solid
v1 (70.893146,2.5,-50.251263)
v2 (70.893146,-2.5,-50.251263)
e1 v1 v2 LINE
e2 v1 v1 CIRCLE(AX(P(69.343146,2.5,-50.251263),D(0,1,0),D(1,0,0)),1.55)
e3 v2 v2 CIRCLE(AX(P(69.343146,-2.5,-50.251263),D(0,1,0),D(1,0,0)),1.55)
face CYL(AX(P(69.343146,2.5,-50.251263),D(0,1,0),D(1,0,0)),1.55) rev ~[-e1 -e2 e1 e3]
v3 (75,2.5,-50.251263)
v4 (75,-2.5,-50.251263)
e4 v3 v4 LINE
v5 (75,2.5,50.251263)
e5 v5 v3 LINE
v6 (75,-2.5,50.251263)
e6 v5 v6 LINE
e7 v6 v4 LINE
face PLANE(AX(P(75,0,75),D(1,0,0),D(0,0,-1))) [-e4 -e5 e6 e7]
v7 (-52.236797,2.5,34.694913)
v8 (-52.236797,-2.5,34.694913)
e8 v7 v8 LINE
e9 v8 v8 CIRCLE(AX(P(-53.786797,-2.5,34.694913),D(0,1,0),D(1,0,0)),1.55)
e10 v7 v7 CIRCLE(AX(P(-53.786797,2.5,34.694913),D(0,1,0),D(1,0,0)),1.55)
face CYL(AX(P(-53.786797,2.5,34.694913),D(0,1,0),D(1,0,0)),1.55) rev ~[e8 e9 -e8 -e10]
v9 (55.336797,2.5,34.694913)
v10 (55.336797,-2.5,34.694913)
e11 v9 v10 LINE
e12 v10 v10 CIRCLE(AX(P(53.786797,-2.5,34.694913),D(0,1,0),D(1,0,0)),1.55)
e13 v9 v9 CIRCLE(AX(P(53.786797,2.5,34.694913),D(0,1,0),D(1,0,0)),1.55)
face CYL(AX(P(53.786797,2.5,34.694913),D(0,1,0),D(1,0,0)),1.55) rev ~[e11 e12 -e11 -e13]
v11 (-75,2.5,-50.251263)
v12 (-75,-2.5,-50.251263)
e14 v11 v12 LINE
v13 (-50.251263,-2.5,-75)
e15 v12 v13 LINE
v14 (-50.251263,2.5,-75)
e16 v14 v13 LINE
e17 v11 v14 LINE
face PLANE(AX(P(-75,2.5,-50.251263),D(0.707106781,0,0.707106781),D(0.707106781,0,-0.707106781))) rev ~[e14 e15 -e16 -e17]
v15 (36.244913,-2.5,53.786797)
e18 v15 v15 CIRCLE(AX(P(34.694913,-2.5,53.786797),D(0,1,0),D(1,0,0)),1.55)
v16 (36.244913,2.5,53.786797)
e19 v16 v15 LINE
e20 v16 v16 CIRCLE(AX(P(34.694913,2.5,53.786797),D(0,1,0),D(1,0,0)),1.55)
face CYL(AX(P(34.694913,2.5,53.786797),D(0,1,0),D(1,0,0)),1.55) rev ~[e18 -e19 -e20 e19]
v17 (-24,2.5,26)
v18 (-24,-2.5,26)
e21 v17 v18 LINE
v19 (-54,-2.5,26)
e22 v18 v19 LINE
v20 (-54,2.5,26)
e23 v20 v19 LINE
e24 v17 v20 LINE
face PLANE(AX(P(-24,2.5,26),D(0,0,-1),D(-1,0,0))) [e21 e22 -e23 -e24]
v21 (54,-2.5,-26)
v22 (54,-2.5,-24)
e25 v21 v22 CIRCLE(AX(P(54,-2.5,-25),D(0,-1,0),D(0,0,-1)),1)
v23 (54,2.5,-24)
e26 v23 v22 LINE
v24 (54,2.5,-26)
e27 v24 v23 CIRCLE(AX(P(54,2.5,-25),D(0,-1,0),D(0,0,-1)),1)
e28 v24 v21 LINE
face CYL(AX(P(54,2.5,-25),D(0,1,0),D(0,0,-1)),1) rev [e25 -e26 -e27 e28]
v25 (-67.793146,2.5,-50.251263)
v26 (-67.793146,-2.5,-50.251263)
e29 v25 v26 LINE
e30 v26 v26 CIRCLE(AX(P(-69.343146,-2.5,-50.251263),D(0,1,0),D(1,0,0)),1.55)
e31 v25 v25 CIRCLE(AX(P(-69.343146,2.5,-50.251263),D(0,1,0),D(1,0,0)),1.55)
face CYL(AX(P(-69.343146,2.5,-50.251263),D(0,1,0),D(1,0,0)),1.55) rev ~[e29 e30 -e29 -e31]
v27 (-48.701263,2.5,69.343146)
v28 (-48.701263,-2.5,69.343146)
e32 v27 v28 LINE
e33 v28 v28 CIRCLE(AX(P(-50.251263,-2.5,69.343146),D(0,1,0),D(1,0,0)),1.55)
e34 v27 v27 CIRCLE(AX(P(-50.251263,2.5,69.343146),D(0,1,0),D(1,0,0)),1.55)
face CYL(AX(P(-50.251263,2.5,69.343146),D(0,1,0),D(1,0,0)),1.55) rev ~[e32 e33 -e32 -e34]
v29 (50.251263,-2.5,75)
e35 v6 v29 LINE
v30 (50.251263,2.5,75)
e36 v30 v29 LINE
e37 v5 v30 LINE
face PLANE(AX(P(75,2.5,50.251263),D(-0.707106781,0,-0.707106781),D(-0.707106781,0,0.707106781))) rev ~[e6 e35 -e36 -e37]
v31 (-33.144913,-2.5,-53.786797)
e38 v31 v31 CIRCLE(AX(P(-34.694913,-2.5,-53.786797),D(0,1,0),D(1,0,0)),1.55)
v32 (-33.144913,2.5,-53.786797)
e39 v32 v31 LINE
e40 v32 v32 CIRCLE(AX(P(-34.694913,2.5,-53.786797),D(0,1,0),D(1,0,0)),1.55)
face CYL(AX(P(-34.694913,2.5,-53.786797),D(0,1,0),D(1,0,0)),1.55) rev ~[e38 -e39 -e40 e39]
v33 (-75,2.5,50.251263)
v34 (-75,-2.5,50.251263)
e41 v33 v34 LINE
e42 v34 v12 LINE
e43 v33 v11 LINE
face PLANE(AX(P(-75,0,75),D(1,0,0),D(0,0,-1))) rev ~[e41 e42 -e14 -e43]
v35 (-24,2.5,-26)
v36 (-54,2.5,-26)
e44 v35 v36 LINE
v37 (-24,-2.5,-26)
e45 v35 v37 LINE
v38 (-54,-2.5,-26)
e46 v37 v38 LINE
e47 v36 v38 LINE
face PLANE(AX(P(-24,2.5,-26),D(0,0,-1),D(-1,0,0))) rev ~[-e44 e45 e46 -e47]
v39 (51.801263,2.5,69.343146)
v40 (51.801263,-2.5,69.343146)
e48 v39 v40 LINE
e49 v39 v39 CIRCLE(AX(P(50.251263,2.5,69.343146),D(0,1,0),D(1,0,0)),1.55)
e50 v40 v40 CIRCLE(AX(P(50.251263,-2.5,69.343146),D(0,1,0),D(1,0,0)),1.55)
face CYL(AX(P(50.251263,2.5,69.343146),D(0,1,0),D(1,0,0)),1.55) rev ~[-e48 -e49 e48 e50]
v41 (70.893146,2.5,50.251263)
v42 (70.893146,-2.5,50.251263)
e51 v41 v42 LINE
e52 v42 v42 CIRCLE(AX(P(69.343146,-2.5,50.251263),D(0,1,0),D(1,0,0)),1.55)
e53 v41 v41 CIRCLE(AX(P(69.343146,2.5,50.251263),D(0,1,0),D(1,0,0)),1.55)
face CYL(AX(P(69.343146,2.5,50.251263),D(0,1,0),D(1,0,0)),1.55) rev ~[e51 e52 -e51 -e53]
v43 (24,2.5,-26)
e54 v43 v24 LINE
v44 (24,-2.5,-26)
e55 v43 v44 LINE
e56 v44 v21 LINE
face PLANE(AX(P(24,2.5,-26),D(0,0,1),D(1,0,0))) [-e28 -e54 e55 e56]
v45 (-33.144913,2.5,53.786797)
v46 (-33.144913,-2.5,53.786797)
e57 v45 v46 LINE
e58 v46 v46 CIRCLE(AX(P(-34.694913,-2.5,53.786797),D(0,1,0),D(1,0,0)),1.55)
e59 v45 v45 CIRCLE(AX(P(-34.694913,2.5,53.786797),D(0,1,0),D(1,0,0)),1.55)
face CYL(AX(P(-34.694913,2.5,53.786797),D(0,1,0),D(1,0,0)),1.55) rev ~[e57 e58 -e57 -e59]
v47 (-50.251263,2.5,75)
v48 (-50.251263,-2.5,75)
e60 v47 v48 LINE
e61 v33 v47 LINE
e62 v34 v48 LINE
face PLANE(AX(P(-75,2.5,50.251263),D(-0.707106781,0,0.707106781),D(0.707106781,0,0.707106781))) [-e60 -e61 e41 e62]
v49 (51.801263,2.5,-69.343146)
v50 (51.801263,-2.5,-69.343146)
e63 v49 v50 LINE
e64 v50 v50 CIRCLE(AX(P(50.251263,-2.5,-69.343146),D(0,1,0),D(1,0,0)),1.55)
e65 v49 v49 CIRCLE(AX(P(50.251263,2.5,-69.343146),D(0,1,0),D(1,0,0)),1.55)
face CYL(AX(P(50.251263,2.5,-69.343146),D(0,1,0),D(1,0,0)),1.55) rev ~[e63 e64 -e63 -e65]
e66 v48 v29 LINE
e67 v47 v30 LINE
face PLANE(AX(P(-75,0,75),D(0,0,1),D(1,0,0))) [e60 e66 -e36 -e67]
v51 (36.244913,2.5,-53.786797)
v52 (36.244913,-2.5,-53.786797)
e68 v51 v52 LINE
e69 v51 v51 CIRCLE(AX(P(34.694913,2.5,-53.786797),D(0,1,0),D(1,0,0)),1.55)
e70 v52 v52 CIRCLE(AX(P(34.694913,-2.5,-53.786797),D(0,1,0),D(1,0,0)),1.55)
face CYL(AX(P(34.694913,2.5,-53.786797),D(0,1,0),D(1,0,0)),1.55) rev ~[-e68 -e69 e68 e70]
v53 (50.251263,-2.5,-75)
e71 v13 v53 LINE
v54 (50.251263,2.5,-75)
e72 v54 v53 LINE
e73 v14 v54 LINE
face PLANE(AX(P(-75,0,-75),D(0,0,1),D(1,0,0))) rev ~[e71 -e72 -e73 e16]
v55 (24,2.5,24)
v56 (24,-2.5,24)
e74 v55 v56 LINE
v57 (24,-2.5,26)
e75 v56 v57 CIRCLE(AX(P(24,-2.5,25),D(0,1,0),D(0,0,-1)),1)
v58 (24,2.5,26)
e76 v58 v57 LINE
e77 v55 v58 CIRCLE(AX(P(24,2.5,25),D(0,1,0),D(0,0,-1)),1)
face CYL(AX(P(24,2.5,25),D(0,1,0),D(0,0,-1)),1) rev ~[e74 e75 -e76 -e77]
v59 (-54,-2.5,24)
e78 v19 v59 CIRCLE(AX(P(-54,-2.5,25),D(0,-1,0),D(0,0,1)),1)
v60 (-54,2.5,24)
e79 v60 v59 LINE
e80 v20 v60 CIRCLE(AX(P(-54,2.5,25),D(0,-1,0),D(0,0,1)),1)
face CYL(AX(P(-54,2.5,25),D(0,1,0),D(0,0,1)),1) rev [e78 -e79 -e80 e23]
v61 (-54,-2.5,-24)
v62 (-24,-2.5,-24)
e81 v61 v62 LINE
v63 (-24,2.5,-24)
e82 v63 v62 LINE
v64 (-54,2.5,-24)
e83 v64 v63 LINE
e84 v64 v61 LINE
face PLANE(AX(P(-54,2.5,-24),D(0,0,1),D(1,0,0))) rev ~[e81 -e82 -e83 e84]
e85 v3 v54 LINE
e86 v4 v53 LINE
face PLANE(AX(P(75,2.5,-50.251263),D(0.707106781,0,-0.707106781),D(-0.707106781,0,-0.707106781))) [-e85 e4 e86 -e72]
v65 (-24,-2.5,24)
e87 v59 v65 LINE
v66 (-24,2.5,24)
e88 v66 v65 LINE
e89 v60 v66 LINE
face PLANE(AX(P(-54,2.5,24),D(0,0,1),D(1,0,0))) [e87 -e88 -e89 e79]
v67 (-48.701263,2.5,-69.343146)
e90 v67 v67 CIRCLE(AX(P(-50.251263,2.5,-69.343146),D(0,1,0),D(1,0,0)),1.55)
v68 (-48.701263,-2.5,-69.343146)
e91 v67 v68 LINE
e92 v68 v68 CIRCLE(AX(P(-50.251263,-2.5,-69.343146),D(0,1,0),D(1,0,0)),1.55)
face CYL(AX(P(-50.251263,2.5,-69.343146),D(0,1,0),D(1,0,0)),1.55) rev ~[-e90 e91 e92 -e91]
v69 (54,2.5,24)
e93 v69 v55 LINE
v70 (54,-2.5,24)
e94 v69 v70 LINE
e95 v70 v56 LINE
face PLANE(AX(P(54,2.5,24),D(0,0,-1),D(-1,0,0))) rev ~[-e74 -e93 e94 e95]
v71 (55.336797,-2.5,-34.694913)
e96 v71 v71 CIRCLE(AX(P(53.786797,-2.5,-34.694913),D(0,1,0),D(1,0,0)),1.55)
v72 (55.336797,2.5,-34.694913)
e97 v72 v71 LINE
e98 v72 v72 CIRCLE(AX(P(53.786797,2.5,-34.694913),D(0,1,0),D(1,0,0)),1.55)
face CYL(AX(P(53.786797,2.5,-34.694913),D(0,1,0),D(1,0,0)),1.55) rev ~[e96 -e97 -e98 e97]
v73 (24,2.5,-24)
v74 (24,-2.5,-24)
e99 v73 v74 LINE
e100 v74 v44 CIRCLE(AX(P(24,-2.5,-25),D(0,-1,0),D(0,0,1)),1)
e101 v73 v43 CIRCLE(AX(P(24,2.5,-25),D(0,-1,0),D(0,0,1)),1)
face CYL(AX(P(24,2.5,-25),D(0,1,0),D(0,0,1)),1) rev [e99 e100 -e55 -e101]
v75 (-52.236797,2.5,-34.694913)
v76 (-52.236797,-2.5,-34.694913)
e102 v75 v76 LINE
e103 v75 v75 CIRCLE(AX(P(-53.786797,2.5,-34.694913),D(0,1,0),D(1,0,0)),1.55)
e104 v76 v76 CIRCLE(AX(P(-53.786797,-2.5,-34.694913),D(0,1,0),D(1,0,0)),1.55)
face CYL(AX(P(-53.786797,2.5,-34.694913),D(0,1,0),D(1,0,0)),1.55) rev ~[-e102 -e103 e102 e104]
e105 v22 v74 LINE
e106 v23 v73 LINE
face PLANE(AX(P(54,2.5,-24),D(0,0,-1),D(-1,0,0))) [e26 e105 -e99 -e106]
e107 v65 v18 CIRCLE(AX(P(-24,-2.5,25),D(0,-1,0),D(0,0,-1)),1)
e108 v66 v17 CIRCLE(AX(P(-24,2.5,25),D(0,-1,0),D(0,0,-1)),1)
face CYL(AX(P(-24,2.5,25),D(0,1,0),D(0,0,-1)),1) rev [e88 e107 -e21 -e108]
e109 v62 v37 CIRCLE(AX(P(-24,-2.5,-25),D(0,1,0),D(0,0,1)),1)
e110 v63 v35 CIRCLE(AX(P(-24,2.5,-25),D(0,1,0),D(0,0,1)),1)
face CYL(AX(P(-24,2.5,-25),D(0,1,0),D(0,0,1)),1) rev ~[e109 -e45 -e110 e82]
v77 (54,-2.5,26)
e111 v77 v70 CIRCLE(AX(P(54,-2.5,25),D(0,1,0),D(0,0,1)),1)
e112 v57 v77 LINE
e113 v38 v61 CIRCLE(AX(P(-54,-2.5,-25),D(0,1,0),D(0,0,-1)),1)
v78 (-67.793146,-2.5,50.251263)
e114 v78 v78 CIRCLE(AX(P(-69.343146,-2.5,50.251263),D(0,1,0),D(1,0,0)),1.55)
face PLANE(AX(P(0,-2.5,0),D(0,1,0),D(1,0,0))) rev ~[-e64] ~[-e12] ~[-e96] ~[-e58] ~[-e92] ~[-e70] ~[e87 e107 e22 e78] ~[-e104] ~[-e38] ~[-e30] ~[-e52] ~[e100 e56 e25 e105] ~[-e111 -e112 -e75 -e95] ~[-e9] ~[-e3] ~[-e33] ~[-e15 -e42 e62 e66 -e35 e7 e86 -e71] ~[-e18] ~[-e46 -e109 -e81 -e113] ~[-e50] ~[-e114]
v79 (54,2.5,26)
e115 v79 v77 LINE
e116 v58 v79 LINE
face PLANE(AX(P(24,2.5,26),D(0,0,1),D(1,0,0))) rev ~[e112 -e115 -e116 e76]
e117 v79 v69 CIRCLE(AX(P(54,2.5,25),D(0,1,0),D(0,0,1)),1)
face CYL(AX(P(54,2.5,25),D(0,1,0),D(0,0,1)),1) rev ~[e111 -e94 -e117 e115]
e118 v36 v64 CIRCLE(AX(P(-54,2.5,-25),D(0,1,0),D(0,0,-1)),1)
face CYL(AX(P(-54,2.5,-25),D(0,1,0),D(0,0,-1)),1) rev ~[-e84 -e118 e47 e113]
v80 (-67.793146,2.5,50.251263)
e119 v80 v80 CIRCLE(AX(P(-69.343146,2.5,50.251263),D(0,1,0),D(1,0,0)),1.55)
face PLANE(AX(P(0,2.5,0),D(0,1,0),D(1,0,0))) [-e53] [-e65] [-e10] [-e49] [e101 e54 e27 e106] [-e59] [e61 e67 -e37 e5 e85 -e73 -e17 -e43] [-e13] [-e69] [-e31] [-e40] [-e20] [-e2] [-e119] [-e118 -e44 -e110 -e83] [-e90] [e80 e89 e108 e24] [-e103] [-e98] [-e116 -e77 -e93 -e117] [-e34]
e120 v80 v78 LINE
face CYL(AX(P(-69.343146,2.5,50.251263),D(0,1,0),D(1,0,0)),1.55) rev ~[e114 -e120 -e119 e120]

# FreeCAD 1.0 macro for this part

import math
import FreeCAD as App
import Part
import Sketcher
Q = App.Units.Quantity


def add_polygon(sketch, points):
    """Adds a closed chain of lines whose ends are joined by coincident constraints."""
    first, n = sketch.GeometryCount, len(points)
    for a, b in zip(points, points[1:] + points[:1]):
        sketch.addGeometry(Part.LineSegment(App.Vector(*a, 0), App.Vector(*b, 0)), False)
    for i in range(n):
        sketch.addConstraint(Sketcher.Constraint("Coincident", first + i, 2, first + (i + 1) % n, 1))

doc = App.newDocument("Part")
params = doc.addObject("Spreadsheet::Sheet", "Params")
for row, (alias, value) in enumerate([
    ("sketch1_width", "150 mm"),
    ("pad1_length", "5 mm"),
    ("sketch2_length", "35 mm"),
    ("pocket1_length", "5 mm"),
    ("sketch3_diameter", "3.1 mm"),
    ("pocket2_length", "5 mm"),
    ("sketch4_radius", "1 mm"),
    ("sketch4_width", "30 mm"),
    ("pocket3_length", "5 mm"),
], start=1):
    params.set(f"A{row}", alias)
    params.set(f"B{row}", "=" + value)
    params.setAlias(f"B{row}", alias)

body = doc.addObject("PartDesign::Body", "Body")

sketch1 = body.newObject("Sketcher::SketchObject", "Sketch")
sketch1.AttachmentSupport = (doc.getObject("XZ_Plane"), [""])
sketch1.MapMode = "FlatFace"
add_polygon(sketch1, [(-75, -75), (-75, 75), (75, 75), (75, -75)])
sketch1.addConstraint([
    Sketcher.Constraint("Vertical", 0),
    Sketcher.Constraint("Horizontal", 1),
    Sketcher.Constraint("Vertical", 2),
    Sketcher.Constraint("Horizontal", 3),
    Sketcher.Constraint("Symmetric", 0, 2, 2, 2, -1, 1),
    Sketcher.Constraint("Equal", 3, 0),
    Sketcher.Constraint("DistanceX", 1, 1, 1, 2, Q("150 mm")),
])
sketch1.setExpression("Constraints[10]", "Params.sketch1_width")
pad1 = body.newObject("PartDesign::Pad", "Pad")
pad1.Profile = sketch1
pad1.setExpression("Length", "Params.pad1_length")
pad1.Midplane = True

sketch2 = body.newObject("Sketcher::SketchObject", "Sketch001")
sketch2.AttachmentSupport = (doc.getObject("XZ_Plane"), [""])
sketch2.MapMode = "FlatFace"
sketch2.AttachmentOffset = App.Placement(App.Vector(0, 0, -2.5), App.Rotation())
add_polygon(sketch2, [(75, -75), (50, -75), (75, -50)])
add_polygon(sketch2, [(-75, -75), (-75, -50), (-50, -75)])
add_polygon(sketch2, [(-75, 75), (-50, 75), (-75, 50)])
add_polygon(sketch2, [(75, 75), (75, 50), (50, 75)])
sketch2.addConstraint([
    Sketcher.Constraint("Horizontal", 0),
    Sketcher.Constraint("Vertical", 2),
    Sketcher.Constraint("Vertical", 3),
    Sketcher.Constraint("Horizontal", 5),
    Sketcher.Constraint("Horizontal", 6),
    Sketcher.Constraint("Vertical", 8),
    Sketcher.Constraint("Vertical", 9),
    Sketcher.Constraint("Horizontal", 11),
    Sketcher.Constraint("Symmetric", 0, 2, 6, 2, -1, 1),
    Sketcher.Constraint("Symmetric", 1, 2, 7, 2, -1, 1),
    Sketcher.Constraint("Symmetric", 3, 2, 9, 2, -1, 1),
    Sketcher.Constraint("Symmetric", 4, 2, 10, 2, -1, 1),
    Sketcher.Constraint("Symmetric", 1, 2, 3, 2, -2),
    Sketcher.Constraint("Symmetric", 0, 2, 4, 2, -2),
    Sketcher.Constraint("Perpendicular", 1, 4),
    Sketcher.Constraint("Distance", 1, Q("35 mm")),
    Sketcher.Constraint("DistanceY", 0, 2, -1, 1, Q("75 mm")),
    Sketcher.Constraint("DistanceX", -1, 1, 1, 2, Q("75 mm")),
])
sketch2.setExpression("Constraints[27]", "Params.sketch2_length")
pocket1 = body.newObject("PartDesign::Pocket", "Pocket")
pocket1.Profile = sketch2
pocket1.setExpression("Length", "Params.pocket1_length")
pocket1.Reversed = True

sketch3 = body.newObject("Sketcher::SketchObject", "Sketch002")
sketch3.AttachmentSupport = (doc.getObject("XZ_Plane"), [""])
sketch3.MapMode = "FlatFace"
sketch3.AttachmentOffset = App.Placement(App.Vector(0, 0, -2.5), App.Rotation())
sketch3.addGeometry([
    Part.Circle(App.Vector(69.3, -50.3, 0), App.Vector(0, 0, 1), 1.6),
    Part.Circle(App.Vector(53.8, -34.7, 0), App.Vector(0, 0, 1), 1.6),
    Part.Circle(App.Vector(34.7, -53.8, 0), App.Vector(0, 0, 1), 1.6),
    Part.Circle(App.Vector(50.3, -69.3, 0), App.Vector(0, 0, 1), 1.6),
    Part.Circle(App.Vector(-69.3, -50.3, 0), App.Vector(0, 0, 1), 1.6),
    Part.Circle(App.Vector(-53.8, -34.7, 0), App.Vector(0, 0, 1), 1.6),
    Part.Circle(App.Vector(-34.7, -53.8, 0), App.Vector(0, 0, 1), 1.6),
    Part.Circle(App.Vector(-50.3, -69.3, 0), App.Vector(0, 0, 1), 1.6),
    Part.Circle(App.Vector(-53.8, 34.7, 0), App.Vector(0, 0, 1), 1.6),
    Part.Circle(App.Vector(-69.3, 50.3, 0), App.Vector(0, 0, 1), 1.6),
    Part.Circle(App.Vector(-34.7, 53.8, 0), App.Vector(0, 0, 1), 1.6),
    Part.Circle(App.Vector(-50.3, 69.3, 0), App.Vector(0, 0, 1), 1.6),
    Part.Circle(App.Vector(69.3, 50.3, 0), App.Vector(0, 0, 1), 1.6),
    Part.Circle(App.Vector(53.8, 34.7, 0), App.Vector(0, 0, 1), 1.6),
    Part.Circle(App.Vector(34.7, 53.8, 0), App.Vector(0, 0, 1), 1.6),
    Part.Circle(App.Vector(50.3, 69.3, 0), App.Vector(0, 0, 1), 1.6),
], False)
sketch3.addConstraint([
    Sketcher.Constraint("Equal", 0, 1),
    Sketcher.Constraint("Equal", 1, 2),
    Sketcher.Constraint("Equal", 2, 3),
    Sketcher.Constraint("Equal", 3, 4),
    Sketcher.Constraint("Equal", 4, 5),
    Sketcher.Constraint("Equal", 5, 6),
    Sketcher.Constraint("Equal", 6, 7),
    Sketcher.Constraint("Equal", 7, 8),
    Sketcher.Constraint("Equal", 8, 9),
    Sketcher.Constraint("Equal", 9, 10),
    Sketcher.Constraint("Equal", 10, 11),
    Sketcher.Constraint("Equal", 11, 12),
    Sketcher.Constraint("Equal", 12, 13),
    Sketcher.Constraint("Equal", 13, 14),
    Sketcher.Constraint("Equal", 14, 15),
    Sketcher.Constraint("Symmetric", 1, 3, 8, 3, -1, 1),
    Sketcher.Constraint("Symmetric", 0, 3, 9, 3, -1, 1),
    Sketcher.Constraint("Symmetric", 2, 3, 10, 3, -1, 1),
    Sketcher.Constraint("Symmetric", 3, 3, 11, 3, -1, 1),
    Sketcher.Constraint("Symmetric", 4, 3, 12, 3, -1, 1),
    Sketcher.Constraint("Symmetric", 5, 3, 13, 3, -1, 1),
    Sketcher.Constraint("Symmetric", 6, 3, 14, 3, -1, 1),
    Sketcher.Constraint("Symmetric", 7, 3, 15, 3, -1, 1),
    Sketcher.Constraint("Symmetric", 0, 3, 4, 3, -2),
    Sketcher.Constraint("Symmetric", 1, 3, 5, 3, -2),
    Sketcher.Constraint("Symmetric", 2, 3, 6, 3, -2),
    Sketcher.Constraint("Symmetric", 3, 3, 7, 3, -2),
    Sketcher.Constraint("Diameter", 0, Q("3.1 mm")),
    Sketcher.Constraint("DistanceX", 1, 3, 0, 3, Q("15.556349 mm")),
    Sketcher.Constraint("DistanceY", 0, 3, 1, 3, Q("15.556349 mm")),
    Sketcher.Constraint("DistanceX", 2, 3, 3, 3, Q("15.556349 mm")),
    Sketcher.Constraint("DistanceY", 3, 3, 2, 3, Q("15.556349 mm")),
    Sketcher.Constraint("DistanceX", 4, 3, 2, 3, Q("104.038059 mm")),
    Sketcher.Constraint("DistanceX", 4, 3, 0, 3, Q("138.686292 mm")),
    Sketcher.Constraint("DistanceY", 6, 3, 8, 3, Q("88.48171 mm")),
    Sketcher.Constraint("DistanceY", 0, 3, -1, 1, Q("50.251263 mm")),
])
sketch3.setExpression("Constraints[27]", "Params.sketch3_diameter")
pocket2 = body.newObject("PartDesign::Pocket", "Pocket001")
pocket2.Profile = sketch3
pocket2.setExpression("Length", "Params.pocket2_length")
pocket2.Reversed = True

sketch4 = body.newObject("Sketcher::SketchObject", "Sketch003")
sketch4.AttachmentSupport = (doc.getObject("XZ_Plane"), [""])
sketch4.MapMode = "FlatFace"
sketch4.AttachmentOffset = App.Placement(App.Vector(0, 0, -2.5), App.Rotation())
sketch4.addGeometry([
    Part.LineSegment(App.Vector(54, -26, 0), App.Vector(24, -26, 0)),
    Part.ArcOfCircle(Part.Circle(App.Vector(24, -25, 0), App.Vector(0, 0, 1), 1), math.radians(90), math.radians(270)),
    Part.LineSegment(App.Vector(24, -24, 0), App.Vector(54, -24, 0)),
    Part.ArcOfCircle(Part.Circle(App.Vector(54, -25, 0), App.Vector(0, 0, 1), 1), math.radians(-90), math.radians(90)),
    Part.LineSegment(App.Vector(24, 26, 0), App.Vector(54, 26, 0)),
    Part.ArcOfCircle(Part.Circle(App.Vector(54, 25, 0), App.Vector(0, 0, 1), 1), math.radians(-90), math.radians(90)),
    Part.LineSegment(App.Vector(54, 24, 0), App.Vector(24, 24, 0)),
    Part.ArcOfCircle(Part.Circle(App.Vector(24, 25, 0), App.Vector(0, 0, 1), 1), math.radians(90), math.radians(270)),
    Part.LineSegment(App.Vector(-54, 26, 0), App.Vector(-24, 26, 0)),
    Part.ArcOfCircle(Part.Circle(App.Vector(-24, 25, 0), App.Vector(0, 0, 1), 1), math.radians(-90), math.radians(90)),
    Part.LineSegment(App.Vector(-24, 24, 0), App.Vector(-54, 24, 0)),
    Part.ArcOfCircle(Part.Circle(App.Vector(-54, 25, 0), App.Vector(0, 0, 1), 1), math.radians(90), math.radians(270)),
    Part.LineSegment(App.Vector(-24, -26, 0), App.Vector(-54, -26, 0)),
    Part.ArcOfCircle(Part.Circle(App.Vector(-54, -25, 0), App.Vector(0, 0, 1), 1), math.radians(90), math.radians(270)),
    Part.LineSegment(App.Vector(-54, -24, 0), App.Vector(-24, -24, 0)),
    Part.ArcOfCircle(Part.Circle(App.Vector(-24, -25, 0), App.Vector(0, 0, 1), 1), math.radians(-90), math.radians(90)),
], False)
sketch4.addConstraint([
    Sketcher.Constraint("Tangent", 0, 2, 1, 2),
    Sketcher.Constraint("Tangent", 1, 1, 2, 1),
    Sketcher.Constraint("Tangent", 2, 2, 3, 2),
    Sketcher.Constraint("Tangent", 3, 1, 0, 1),
    Sketcher.Constraint("Tangent", 4, 2, 5, 2),
    Sketcher.Constraint("Tangent", 5, 1, 6, 1),
    Sketcher.Constraint("Tangent", 6, 2, 7, 2),
    Sketcher.Constraint("Tangent", 7, 1, 4, 1),
    Sketcher.Constraint("Tangent", 8, 2, 9, 2),
    Sketcher.Constraint("Tangent", 9, 1, 10, 1),
    Sketcher.Constraint("Tangent", 10, 2, 11, 2),
    Sketcher.Constraint("Tangent", 11, 1, 8, 1),
    Sketcher.Constraint("Tangent", 12, 2, 13, 2),
    Sketcher.Constraint("Tangent", 13, 1, 14, 1),
    Sketcher.Constraint("Tangent", 14, 2, 15, 2),
    Sketcher.Constraint("Tangent", 15, 1, 12, 1),
    Sketcher.Constraint("Horizontal", 0),
    Sketcher.Constraint("Horizontal", 2),
    Sketcher.Constraint("Horizontal", 4),
    Sketcher.Constraint("Horizontal", 6),
    Sketcher.Constraint("Horizontal", 8),
    Sketcher.Constraint("Horizontal", 10),
    Sketcher.Constraint("Horizontal", 12),
    Sketcher.Constraint("Horizontal", 14),
    Sketcher.Constraint("Equal", 3, 5),
    Sketcher.Constraint("Equal", 7, 9),
    Sketcher.Constraint("Equal", 11, 13),
    Sketcher.Constraint("Symmetric", 1, 3, 9, 3, -1, 1),
    Sketcher.Constraint("Symmetric", 5, 3, 13, 3, -1, 1),
    Sketcher.Constraint("Symmetric", 7, 3, 9, 3, -2),
    Sketcher.Constraint("Vertical", 3, 3, 5, 3),
    Sketcher.Constraint("Vertical", 11, 3, 13, 3),
    Sketcher.Constraint("Vertical", 9, 3, 15, 3),
    Sketcher.Constraint("Radius", 1, Q("1 mm")),
    Sketcher.Constraint("DistanceX", 0, 2, 0, 1, Q("30 mm")),
    Sketcher.Constraint("DistanceX", -1, 1, 1, 3, Q("24 mm")),
    Sketcher.Constraint("DistanceY", 1, 3, -1, 1, Q("25 mm")),
])
sketch4.setExpression("Constraints[33]", "Params.sketch4_radius")
sketch4.setExpression("Constraints[34]", "Params.sketch4_width")
pocket3 = body.newObject("PartDesign::Pocket", "Pocket002")
pocket3.Profile = sketch4
pocket3.setExpression("Length", "Params.pocket3_length")
pocket3.Reversed = True

doc.recompute()
